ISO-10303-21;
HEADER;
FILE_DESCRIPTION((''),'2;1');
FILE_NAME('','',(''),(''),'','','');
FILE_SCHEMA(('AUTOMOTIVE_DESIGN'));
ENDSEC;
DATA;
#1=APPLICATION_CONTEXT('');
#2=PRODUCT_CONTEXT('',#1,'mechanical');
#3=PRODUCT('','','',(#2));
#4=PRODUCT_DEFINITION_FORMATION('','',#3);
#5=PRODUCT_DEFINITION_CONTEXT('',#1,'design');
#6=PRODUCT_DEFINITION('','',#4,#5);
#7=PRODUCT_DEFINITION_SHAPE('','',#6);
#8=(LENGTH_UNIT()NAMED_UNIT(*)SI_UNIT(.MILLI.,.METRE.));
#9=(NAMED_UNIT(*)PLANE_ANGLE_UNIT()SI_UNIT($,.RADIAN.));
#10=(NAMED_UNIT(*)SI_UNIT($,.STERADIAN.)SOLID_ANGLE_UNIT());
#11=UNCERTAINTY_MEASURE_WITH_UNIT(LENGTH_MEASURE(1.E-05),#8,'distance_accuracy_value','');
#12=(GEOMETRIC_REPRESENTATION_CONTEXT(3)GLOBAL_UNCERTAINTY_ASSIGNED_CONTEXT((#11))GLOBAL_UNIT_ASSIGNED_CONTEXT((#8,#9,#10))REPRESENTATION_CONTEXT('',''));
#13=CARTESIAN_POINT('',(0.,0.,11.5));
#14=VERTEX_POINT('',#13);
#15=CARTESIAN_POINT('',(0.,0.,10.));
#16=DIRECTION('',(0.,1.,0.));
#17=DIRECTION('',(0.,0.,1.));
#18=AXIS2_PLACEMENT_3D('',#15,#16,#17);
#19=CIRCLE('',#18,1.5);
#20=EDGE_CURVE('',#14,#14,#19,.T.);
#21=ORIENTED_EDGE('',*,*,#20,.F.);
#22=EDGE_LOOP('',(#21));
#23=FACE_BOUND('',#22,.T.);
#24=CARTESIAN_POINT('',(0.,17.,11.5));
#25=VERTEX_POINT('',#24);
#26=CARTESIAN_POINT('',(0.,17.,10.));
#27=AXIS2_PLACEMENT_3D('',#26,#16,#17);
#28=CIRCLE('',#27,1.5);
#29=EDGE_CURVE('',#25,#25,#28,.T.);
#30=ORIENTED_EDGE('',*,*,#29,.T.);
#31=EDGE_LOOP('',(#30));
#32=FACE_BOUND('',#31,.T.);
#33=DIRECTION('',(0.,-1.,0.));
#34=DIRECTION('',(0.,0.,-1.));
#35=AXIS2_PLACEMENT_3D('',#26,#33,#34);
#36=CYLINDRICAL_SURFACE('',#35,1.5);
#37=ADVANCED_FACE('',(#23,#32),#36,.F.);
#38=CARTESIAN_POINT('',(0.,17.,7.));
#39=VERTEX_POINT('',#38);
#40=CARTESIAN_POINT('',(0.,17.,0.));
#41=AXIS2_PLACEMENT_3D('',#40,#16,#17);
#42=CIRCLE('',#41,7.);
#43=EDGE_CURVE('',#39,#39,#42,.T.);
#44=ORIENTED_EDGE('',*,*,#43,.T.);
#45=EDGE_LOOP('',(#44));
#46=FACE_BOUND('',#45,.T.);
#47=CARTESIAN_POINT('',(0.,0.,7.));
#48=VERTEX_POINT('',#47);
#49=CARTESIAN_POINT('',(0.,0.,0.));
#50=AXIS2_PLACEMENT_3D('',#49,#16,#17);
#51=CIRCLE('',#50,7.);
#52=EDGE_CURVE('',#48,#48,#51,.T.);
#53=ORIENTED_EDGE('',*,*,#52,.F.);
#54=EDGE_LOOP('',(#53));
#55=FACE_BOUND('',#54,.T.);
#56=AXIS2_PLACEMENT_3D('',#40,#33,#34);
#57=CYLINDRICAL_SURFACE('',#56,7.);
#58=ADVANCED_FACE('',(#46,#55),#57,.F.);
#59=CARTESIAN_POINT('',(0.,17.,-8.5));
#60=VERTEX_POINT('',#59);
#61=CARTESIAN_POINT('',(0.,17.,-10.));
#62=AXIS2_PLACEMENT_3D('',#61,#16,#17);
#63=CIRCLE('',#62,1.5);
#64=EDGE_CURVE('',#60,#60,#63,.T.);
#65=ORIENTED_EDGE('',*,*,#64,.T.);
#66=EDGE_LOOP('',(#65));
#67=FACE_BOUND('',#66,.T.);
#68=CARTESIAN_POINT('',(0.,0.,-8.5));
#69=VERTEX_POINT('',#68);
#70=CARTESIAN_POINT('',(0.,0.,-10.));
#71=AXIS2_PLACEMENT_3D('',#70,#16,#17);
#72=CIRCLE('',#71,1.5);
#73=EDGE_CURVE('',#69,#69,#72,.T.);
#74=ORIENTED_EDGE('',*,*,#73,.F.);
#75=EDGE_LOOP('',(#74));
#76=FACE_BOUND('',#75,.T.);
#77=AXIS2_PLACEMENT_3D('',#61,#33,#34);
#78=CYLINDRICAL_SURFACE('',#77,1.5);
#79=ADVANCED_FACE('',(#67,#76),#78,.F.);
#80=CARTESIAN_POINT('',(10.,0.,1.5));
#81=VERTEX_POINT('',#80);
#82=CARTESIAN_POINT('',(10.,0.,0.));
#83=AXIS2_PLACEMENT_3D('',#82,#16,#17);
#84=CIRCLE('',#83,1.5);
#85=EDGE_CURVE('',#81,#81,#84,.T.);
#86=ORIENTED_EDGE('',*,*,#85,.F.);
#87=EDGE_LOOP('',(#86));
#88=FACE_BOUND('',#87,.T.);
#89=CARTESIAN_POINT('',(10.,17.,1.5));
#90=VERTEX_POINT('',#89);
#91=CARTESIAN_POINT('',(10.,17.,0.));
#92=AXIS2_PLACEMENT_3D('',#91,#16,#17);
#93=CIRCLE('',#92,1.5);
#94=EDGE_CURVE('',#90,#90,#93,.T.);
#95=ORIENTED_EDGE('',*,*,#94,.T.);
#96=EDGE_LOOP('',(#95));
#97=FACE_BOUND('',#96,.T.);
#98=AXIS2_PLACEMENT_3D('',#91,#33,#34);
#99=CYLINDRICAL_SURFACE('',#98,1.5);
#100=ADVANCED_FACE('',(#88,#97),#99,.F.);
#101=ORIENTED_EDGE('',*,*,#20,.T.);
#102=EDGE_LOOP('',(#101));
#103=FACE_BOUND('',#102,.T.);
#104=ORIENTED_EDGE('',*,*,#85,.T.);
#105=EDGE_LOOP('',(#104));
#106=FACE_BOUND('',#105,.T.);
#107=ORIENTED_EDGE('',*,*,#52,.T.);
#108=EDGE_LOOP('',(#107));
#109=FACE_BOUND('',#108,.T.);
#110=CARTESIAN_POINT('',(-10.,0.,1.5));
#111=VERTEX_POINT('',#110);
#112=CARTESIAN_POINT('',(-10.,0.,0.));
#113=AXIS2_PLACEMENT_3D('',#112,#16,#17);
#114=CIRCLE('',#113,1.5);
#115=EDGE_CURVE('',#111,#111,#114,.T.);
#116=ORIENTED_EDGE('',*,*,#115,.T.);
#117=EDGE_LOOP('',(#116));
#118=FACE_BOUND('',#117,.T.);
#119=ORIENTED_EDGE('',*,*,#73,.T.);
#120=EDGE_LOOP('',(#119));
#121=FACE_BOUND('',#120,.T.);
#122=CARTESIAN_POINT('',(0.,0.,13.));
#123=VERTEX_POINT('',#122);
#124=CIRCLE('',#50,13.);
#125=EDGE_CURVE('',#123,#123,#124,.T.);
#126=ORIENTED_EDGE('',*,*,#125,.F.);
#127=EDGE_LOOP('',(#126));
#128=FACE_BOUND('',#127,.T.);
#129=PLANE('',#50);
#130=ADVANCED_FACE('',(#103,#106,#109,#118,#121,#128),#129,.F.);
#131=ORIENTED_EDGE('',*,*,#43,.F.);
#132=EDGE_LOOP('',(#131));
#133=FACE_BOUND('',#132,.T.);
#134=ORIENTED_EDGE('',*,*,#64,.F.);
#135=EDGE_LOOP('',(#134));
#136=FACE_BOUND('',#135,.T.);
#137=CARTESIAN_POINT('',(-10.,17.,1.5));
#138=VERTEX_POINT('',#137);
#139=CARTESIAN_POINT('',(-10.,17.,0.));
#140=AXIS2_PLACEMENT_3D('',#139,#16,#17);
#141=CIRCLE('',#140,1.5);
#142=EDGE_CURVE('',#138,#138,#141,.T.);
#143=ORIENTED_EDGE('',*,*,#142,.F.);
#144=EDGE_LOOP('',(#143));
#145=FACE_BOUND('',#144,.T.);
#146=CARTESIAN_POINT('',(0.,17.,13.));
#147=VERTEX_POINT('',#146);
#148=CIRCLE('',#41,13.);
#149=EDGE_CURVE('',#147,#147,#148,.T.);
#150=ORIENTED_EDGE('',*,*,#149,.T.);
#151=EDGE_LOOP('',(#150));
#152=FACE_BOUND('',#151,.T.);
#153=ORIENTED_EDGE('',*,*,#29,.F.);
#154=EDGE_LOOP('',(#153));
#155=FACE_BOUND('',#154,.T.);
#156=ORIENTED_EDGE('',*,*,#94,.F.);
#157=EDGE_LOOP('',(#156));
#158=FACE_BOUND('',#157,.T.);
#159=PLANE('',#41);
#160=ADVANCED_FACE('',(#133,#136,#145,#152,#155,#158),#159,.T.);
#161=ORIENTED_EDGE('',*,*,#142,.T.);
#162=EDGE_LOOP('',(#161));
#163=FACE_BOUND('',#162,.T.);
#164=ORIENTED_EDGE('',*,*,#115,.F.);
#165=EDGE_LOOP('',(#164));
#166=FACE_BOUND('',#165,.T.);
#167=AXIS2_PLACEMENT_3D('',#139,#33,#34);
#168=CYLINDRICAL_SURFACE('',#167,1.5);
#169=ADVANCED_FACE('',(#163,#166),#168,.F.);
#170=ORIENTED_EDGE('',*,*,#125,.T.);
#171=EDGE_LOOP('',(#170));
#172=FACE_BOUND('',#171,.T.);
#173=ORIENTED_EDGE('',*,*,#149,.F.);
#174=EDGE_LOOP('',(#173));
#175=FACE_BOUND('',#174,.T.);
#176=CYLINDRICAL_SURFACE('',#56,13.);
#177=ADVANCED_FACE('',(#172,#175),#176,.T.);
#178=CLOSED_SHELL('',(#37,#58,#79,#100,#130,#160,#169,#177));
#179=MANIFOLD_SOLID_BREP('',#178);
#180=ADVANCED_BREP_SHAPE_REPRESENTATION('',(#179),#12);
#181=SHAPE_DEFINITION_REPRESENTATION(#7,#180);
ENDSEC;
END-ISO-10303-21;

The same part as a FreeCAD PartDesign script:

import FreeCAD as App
import Part
import Sketcher

doc = App.newDocument("Part")
body = doc.addObject("PartDesign::Body", "Body")

# Sketch on XZ plane
sketch1 = doc.addObject("Sketcher::SketchObject", "Sketch")
body.addObject(sketch1)
sketch1.AttachmentSupport = (doc.XZ_Plane, [""])
sketch1.MapMode = "FlatFace"
sketch1.addGeometry([
    Part.Circle(App.Vector(0, 0, 0), App.Vector(0, 0, 1), 13),  # 0
    Part.Circle(App.Vector(0, -10, 0), App.Vector(0, 0, 1), 1.5),  # 1
    Part.Circle(App.Vector(-10, 0, 0), App.Vector(0, 0, 1), 1.5),  # 2
    Part.Circle(App.Vector(10, 0, 0), App.Vector(0, 0, 1), 1.5),  # 3
    Part.Circle(App.Vector(0, 0, 0), App.Vector(0, 0, 1), 7),  # 4
    Part.Circle(App.Vector(0, 10, 0), App.Vector(0, 0, 1), 1.5),  # 5
], False)
sketch1.addConstraint([
    Sketcher.Constraint("Coincident", 0, 3, -1, 1),
    Sketcher.Constraint("Coincident", 4, 3, -1, 1),
    Sketcher.Constraint("Equal", 1, 2),
    Sketcher.Constraint("Equal", 2, 3),
    Sketcher.Constraint("Equal", 3, 5),
    Sketcher.Constraint("Symmetric", 2, 3, 3, 3, -1, 1),
    Sketcher.Constraint("Symmetric", 1, 3, 5, 3, -1, 1),
    Sketcher.Constraint("PointOnObject", 1, 3, -2),
    Sketcher.Constraint("PointOnObject", 2, 3, -1),
    Sketcher.Constraint("Diameter", 0, 26.0),
    Sketcher.Constraint("Diameter", 1, 3.0),
    Sketcher.Constraint("Diameter", 4, 14.0),
    Sketcher.Constraint("DistanceY", 1, 3, -1, 1, 10.0),
    Sketcher.Constraint("DistanceX", 2, 3, -1, 1, 10.0),
])
pad1 = doc.addObject("PartDesign::Pad", "Pad")
body.addObject(pad1)
pad1.Profile = sketch1
pad1.Length = 17
pad1.Reversed = True

doc.recompute()
